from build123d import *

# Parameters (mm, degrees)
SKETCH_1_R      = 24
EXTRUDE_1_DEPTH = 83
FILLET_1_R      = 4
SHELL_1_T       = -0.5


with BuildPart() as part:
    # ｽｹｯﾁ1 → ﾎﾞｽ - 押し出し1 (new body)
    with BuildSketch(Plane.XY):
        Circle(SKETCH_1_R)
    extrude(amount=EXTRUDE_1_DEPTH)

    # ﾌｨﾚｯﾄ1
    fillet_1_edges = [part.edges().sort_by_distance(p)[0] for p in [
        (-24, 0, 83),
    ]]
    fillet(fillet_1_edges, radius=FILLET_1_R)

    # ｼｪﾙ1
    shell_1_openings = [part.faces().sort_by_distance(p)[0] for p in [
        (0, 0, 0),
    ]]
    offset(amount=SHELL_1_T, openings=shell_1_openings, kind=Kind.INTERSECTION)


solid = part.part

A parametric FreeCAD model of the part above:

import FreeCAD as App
import Part
import Sketcher

V = App.Vector
Q = App.Units.Quantity


def edges_at(feature, points):
    """Names of the edges that pass closest to the given points."""
    edges = feature.Shape.Edges
    near = lambda p: min(range(len(edges)), key=lambda i: edges[i].distToShape(Part.Vertex(*p))[0])
    return sorted({f"Edge{near(p) + 1}" for p in points})


def faces_at(feature, points):
    """Names of the faces that lie closest to the given points."""
    faces = feature.Shape.Faces
    near = lambda p: min(range(len(faces)), key=lambda i: faces[i].distToShape(Part.Vertex(*p))[0])
    return sorted({f"Face{near(p) + 1}" for p in points})

doc = App.newDocument("Part")
body = doc.addObject("PartDesign::Body", "Body")

# Sketch on XY plane
sketch1 = body.newObject("Sketcher::SketchObject", "Sketch")
sketch1.AttachmentSupport = (doc.getObject("XY_Plane"), [""])
sketch1.MapMode = "FlatFace"
sketch1.addGeometry(Part.Circle(V(0, 0, 0), V(0, 0, 1), 24), False)
sketch1.addConstraint([
    Sketcher.Constraint("Coincident", 0, 3, -1, 1),
    Sketcher.Constraint("Diameter", 0, Q("48 mm")),
])
pad1 = body.newObject("PartDesign::Pad", "Pad")
pad1.Profile = sketch1
pad1.Length = 83
doc.recompute()

fillet = body.newObject("PartDesign::Fillet", "Fillet")
fillet.Base = (pad1, edges_at(pad1, [(-24, 0, 83)]))
fillet.Radius = 4
doc.recompute()

thickness = body.newObject("PartDesign::Thickness", "Thickness")
thickness.Base = (fillet, faces_at(fillet, [(0, 0, 0)]))
thickness.Value = 0.5
thickness.Reversed = True
thickness.Join = "Intersection"

doc.recompute()
